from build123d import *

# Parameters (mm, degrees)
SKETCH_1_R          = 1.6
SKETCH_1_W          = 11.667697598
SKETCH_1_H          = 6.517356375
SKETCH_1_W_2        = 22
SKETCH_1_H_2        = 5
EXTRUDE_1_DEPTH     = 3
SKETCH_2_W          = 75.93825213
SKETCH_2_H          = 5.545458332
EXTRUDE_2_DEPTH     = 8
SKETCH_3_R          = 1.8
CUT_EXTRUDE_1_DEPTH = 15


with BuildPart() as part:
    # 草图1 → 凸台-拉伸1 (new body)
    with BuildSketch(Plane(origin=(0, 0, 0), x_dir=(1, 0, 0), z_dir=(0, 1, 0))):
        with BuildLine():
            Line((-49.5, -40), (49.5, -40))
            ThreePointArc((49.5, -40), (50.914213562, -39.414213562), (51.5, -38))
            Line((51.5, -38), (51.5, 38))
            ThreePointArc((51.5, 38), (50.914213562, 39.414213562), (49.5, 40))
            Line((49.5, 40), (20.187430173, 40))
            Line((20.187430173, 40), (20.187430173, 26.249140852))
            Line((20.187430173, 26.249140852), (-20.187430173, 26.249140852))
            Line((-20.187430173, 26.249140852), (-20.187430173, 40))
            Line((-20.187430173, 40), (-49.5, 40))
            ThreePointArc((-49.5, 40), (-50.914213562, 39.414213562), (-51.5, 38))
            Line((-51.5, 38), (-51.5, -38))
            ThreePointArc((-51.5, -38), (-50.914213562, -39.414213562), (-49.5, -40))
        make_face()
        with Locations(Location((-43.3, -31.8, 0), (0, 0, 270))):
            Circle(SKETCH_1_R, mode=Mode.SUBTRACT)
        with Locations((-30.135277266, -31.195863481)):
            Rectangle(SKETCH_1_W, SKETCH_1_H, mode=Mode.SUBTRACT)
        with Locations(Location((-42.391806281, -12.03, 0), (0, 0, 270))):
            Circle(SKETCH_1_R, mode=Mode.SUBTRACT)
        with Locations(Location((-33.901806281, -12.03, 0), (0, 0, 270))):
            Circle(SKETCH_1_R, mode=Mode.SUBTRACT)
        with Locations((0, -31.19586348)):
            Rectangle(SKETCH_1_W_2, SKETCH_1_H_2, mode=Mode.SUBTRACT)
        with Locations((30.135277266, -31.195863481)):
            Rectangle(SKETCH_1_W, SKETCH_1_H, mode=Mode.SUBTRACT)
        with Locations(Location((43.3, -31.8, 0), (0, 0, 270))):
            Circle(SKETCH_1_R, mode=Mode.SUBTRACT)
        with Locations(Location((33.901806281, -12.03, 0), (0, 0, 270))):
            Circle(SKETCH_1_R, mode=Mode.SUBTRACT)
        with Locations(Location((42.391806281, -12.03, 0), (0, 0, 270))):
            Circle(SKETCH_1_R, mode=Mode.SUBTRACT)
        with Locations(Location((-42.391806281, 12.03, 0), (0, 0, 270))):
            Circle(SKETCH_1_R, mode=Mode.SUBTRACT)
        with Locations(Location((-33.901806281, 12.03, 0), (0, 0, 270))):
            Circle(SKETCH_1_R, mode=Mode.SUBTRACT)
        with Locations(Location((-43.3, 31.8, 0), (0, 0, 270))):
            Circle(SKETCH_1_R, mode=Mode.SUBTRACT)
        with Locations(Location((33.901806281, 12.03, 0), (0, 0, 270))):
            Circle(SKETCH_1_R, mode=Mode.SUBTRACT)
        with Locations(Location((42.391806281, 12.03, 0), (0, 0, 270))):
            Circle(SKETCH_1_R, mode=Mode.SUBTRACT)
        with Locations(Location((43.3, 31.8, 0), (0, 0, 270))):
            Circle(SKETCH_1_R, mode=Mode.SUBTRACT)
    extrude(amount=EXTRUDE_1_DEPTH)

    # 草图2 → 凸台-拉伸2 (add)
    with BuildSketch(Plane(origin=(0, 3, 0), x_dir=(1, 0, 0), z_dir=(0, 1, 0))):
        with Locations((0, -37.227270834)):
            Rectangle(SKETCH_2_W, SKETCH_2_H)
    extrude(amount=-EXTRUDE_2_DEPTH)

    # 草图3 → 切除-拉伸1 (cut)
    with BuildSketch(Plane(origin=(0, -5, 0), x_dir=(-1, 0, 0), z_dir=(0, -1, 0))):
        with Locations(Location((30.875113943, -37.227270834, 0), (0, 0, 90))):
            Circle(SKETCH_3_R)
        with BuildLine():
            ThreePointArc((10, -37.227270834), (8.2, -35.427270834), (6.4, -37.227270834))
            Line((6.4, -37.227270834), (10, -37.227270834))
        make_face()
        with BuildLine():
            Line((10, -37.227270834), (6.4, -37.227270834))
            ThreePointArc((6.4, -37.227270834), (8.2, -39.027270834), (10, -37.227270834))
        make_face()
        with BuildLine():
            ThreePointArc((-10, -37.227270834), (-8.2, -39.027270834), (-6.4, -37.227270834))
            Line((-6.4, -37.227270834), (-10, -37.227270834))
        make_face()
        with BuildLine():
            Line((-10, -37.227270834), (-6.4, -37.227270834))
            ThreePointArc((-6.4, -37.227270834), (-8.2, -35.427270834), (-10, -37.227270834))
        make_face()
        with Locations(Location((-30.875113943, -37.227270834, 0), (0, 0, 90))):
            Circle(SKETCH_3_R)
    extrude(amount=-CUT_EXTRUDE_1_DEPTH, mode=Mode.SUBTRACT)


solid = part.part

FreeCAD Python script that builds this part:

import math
import FreeCAD as App
import Part
import Sketcher

doc = App.newDocument("Part")
params = doc.addObject("Spreadsheet::Sheet", "Params")
for row, (alias, value) in enumerate([
    ("sketch1_radius", "2 mm"),
    ("sketch1_diameter", "3.2 mm"),
    ("sketch1_width", "99 mm"),
    ("sketch1_width2", "22 mm"),
    ("sketch1_height", "76 mm"),
    ("pad1_length", "3 mm"),
    ("pad2_length", "8 mm"),
    ("sketch3_diameter", "3.6 mm"),
    ("pocket1_length", "15 mm"),
], start=1):
    params.set(f"A{row}", alias)
    params.set(f"B{row}", "=" + value)
    params.setAlias(f"B{row}", alias)

body = doc.addObject("PartDesign::Body", "Body")

# Sketch on XZ plane
sketch1 = body.newObject("Sketcher::SketchObject", "Sketch")
sketch1.AttachmentSupport = (doc.getObject("XZ_Plane"), [""])
sketch1.MapMode = "FlatFace"
sketch1.addGeometry(Part.LineSegment(App.Vector(-49.5, 40, 0), App.Vector(49.5, 40, 0)), False)
sketch1.addGeometry(Part.ArcOfCircle(Part.Circle(App.Vector(49.5, 38, 0), App.Vector(0, 0, 1), 2), math.radians(0), math.radians(90)), False)
sketch1.addGeometry(Part.LineSegment(App.Vector(51.5, 38, 0), App.Vector(51.5, -38, 0)), False)
sketch1.addGeometry(Part.ArcOfCircle(Part.Circle(App.Vector(49.5, -38, 0), App.Vector(0, 0, 1), 2), math.radians(-90), math.radians(0)), False)
sketch1.addGeometry(Part.LineSegment(App.Vector(49.5, -40, 0), App.Vector(20.2, -40, 0)), False)
sketch1.addGeometry(Part.LineSegment(App.Vector(20.2, -40, 0), App.Vector(20.2, -26.2, 0)), False)
sketch1.addGeometry(Part.LineSegment(App.Vector(20.2, -26.2, 0), App.Vector(-20.2, -26.2, 0)), False)
sketch1.addGeometry(Part.LineSegment(App.Vector(-20.2, -26.2, 0), App.Vector(-20.2, -40, 0)), False)
sketch1.addGeometry(Part.LineSegment(App.Vector(-20.2, -40, 0), App.Vector(-49.5, -40, 0)), False)
sketch1.addGeometry(Part.ArcOfCircle(Part.Circle(App.Vector(-49.5, -38, 0), App.Vector(0, 0, 1), 2), math.radians(-180), math.radians(-90)), False)
sketch1.addGeometry(Part.LineSegment(App.Vector(-51.5, -38, 0), App.Vector(-51.5, 38, 0)), False)
sketch1.addGeometry(Part.ArcOfCircle(Part.Circle(App.Vector(-49.5, 38, 0), App.Vector(0, 0, 1), 2), math.radians(90), math.radians(180)), False)
sketch1.addGeometry(Part.Circle(App.Vector(-43.3, 31.8, 0), App.Vector(0, 0, 1), 1.6), False)
sketch1.addGeometry(Part.LineSegment(App.Vector(-24.3, 34.5, 0), App.Vector(-36, 34.5, 0)), False)
sketch1.addGeometry(Part.LineSegment(App.Vector(-36, 34.5, 0), App.Vector(-36, 27.9, 0)), False)
sketch1.addGeometry(Part.LineSegment(App.Vector(-36, 27.9, 0), App.Vector(-24.3, 27.9, 0)), False)
sketch1.addGeometry(Part.LineSegment(App.Vector(-24.3, 27.9, 0), App.Vector(-24.3, 34.5, 0)), False)
sketch1.addGeometry(Part.Circle(App.Vector(-42.4, 12, 0), App.Vector(0, 0, 1), 1.6), False)
sketch1.addGeometry(Part.Circle(App.Vector(-33.9, 12, 0), App.Vector(0, 0, 1), 1.6), False)
sketch1.addGeometry(Part.LineSegment(App.Vector(11, 33.7, 0), App.Vector(-11, 33.7, 0)), False)
sketch1.addGeometry(Part.LineSegment(App.Vector(-11, 33.7, 0), App.Vector(-11, 28.7, 0)), False)
sketch1.addGeometry(Part.LineSegment(App.Vector(-11, 28.7, 0), App.Vector(11, 28.7, 0)), False)
sketch1.addGeometry(Part.LineSegment(App.Vector(11, 28.7, 0), App.Vector(11, 33.7, 0)), False)
sketch1.addGeometry(Part.LineSegment(App.Vector(36, 34.5, 0), App.Vector(24.3, 34.5, 0)), False)
sketch1.addGeometry(Part.LineSegment(App.Vector(24.3, 34.5, 0), App.Vector(24.3, 27.9, 0)), False)
sketch1.addGeometry(Part.LineSegment(App.Vector(24.3, 27.9, 0), App.Vector(36, 27.9, 0)), False)
sketch1.addGeometry(Part.LineSegment(App.Vector(36, 27.9, 0), App.Vector(36, 34.5, 0)), False)
sketch1.addGeometry(Part.Circle(App.Vector(43.3, 31.8, 0), App.Vector(0, 0, 1), 1.6), False)
sketch1.addGeometry(Part.Circle(App.Vector(33.9, 12, 0), App.Vector(0, 0, 1), 1.6), False)
sketch1.addGeometry(Part.Circle(App.Vector(42.4, 12, 0), App.Vector(0, 0, 1), 1.6), False)
sketch1.addGeometry(Part.Circle(App.Vector(-42.4, -12, 0), App.Vector(0, 0, 1), 1.6), False)
sketch1.addGeometry(Part.Circle(App.Vector(-33.9, -12, 0), App.Vector(0, 0, 1), 1.6), False)
sketch1.addGeometry(Part.Circle(App.Vector(-43.3, -31.8, 0), App.Vector(0, 0, 1), 1.6), False)
sketch1.addGeometry(Part.Circle(App.Vector(33.9, -12, 0), App.Vector(0, 0, 1), 1.6), False)
sketch1.addGeometry(Part.Circle(App.Vector(42.4, -12, 0), App.Vector(0, 0, 1), 1.6), False)
sketch1.addGeometry(Part.Circle(App.Vector(43.3, -31.8, 0), App.Vector(0, 0, 1), 1.6), False)
sketch1.addConstraint(Sketcher.Constraint("Tangent", 0, 2, 1, 2))
sketch1.addConstraint(Sketcher.Constraint("Tangent", 1, 1, 2, 1))
sketch1.addConstraint(Sketcher.Constraint("Tangent", 2, 2, 3, 2))
sketch1.addConstraint(Sketcher.Constraint("Tangent", 3, 1, 4, 1))
sketch1.addConstraint(Sketcher.Constraint("Coincident", 4, 2, 5, 1))
sketch1.addConstraint(Sketcher.Constraint("Coincident", 5, 2, 6, 1))
sketch1.addConstraint(Sketcher.Constraint("Coincident", 6, 2, 7, 1))
sketch1.addConstraint(Sketcher.Constraint("Coincident", 7, 2, 8, 1))
sketch1.addConstraint(Sketcher.Constraint("Tangent", 8, 2, 9, 2))
sketch1.addConstraint(Sketcher.Constraint("Tangent", 9, 1, 10, 1))
sketch1.addConstraint(Sketcher.Constraint("Tangent", 10, 2, 11, 2))
sketch1.addConstraint(Sketcher.Constraint("Tangent", 11, 1, 0, 1))
sketch1.addConstraint(Sketcher.Constraint("Coincident", 13, 2, 14, 1))
sketch1.addConstraint(Sketcher.Constraint("Coincident", 14, 2, 15, 1))
sketch1.addConstraint(Sketcher.Constraint("Coincident", 15, 2, 16, 1))
sketch1.addConstraint(Sketcher.Constraint("Coincident", 16, 2, 13, 1))
sketch1.addConstraint(Sketcher.Constraint("Coincident", 19, 2, 20, 1))
sketch1.addConstraint(Sketcher.Constraint("Coincident", 20, 2, 21, 1))
sketch1.addConstraint(Sketcher.Constraint("Coincident", 21, 2, 22, 1))
sketch1.addConstraint(Sketcher.Constraint("Coincident", 22, 2, 19, 1))
sketch1.addConstraint(Sketcher.Constraint("Coincident", 23, 2, 24, 1))
sketch1.addConstraint(Sketcher.Constraint("Coincident", 24, 2, 25, 1))
sketch1.addConstraint(Sketcher.Constraint("Coincident", 25, 2, 26, 1))
sketch1.addConstraint(Sketcher.Constraint("Coincident", 26, 2, 23, 1))
sketch1.addConstraint(Sketcher.Constraint("Horizontal", 0))
sketch1.addConstraint(Sketcher.Constraint("Vertical", 2))
sketch1.addConstraint(Sketcher.Constraint("Horizontal", 4))
sketch1.addConstraint(Sketcher.Constraint("Vertical", 5))
sketch1.addConstraint(Sketcher.Constraint("Horizontal", 6))
sketch1.addConstraint(Sketcher.Constraint("Vertical", 7))
sketch1.addConstraint(Sketcher.Constraint("Horizontal", 8))
sketch1.addConstraint(Sketcher.Constraint("Vertical", 10))
sketch1.addConstraint(Sketcher.Constraint("Horizontal", 13))
sketch1.addConstraint(Sketcher.Constraint("Vertical", 14))
sketch1.addConstraint(Sketcher.Constraint("Horizontal", 15))
sketch1.addConstraint(Sketcher.Constraint("Vertical", 16))
sketch1.addConstraint(Sketcher.Constraint("Horizontal", 19))
sketch1.addConstraint(Sketcher.Constraint("Vertical", 20))
sketch1.addConstraint(Sketcher.Constraint("Horizontal", 21))
sketch1.addConstraint(Sketcher.Constraint("Vertical", 22))
sketch1.addConstraint(Sketcher.Constraint("Horizontal", 23))
sketch1.addConstraint(Sketcher.Constraint("Vertical", 24))
sketch1.addConstraint(Sketcher.Constraint("Horizontal", 25))
sketch1.addConstraint(Sketcher.Constraint("Vertical", 26))
sketch1.addConstraint(Sketcher.Constraint("Equal", 1, 3))
sketch1.addConstraint(Sketcher.Constraint("Equal", 3, 9))
sketch1.addConstraint(Sketcher.Constraint("Equal", 9, 11))
sketch1.addConstraint(Sketcher.Constraint("Equal", 12, 17))
sketch1.addConstraint(Sketcher.Constraint("Equal", 17, 18))
sketch1.addConstraint(Sketcher.Constraint("Equal", 18, 27))
sketch1.addConstraint(Sketcher.Constraint("Equal", 27, 28))
sketch1.addConstraint(Sketcher.Constraint("Equal", 28, 29))
sketch1.addConstraint(Sketcher.Constraint("Equal", 29, 30))
sketch1.addConstraint(Sketcher.Constraint("Equal", 30, 31))
sketch1.addConstraint(Sketcher.Constraint("Equal", 31, 32))
sketch1.addConstraint(Sketcher.Constraint("Equal", 32, 33))
sketch1.addConstraint(Sketcher.Constraint("Equal", 33, 34))
sketch1.addConstraint(Sketcher.Constraint("Equal", 34, 35))
sketch1.addConstraint(Sketcher.Constraint("Symmetric", 1, 3, 9, 3, -1, 1))
sketch1.addConstraint(Sketcher.Constraint("Symmetric", 29, 3, 30, 3, -1, 1))
sketch1.addConstraint(Sketcher.Constraint("Symmetric", 28, 3, 31, 3, -1, 1))
sketch1.addConstraint(Sketcher.Constraint("Symmetric", 27, 3, 32, 3, -1, 1))
sketch1.addConstraint(Sketcher.Constraint("Symmetric", 18, 3, 33, 3, -1, 1))
sketch1.addConstraint(Sketcher.Constraint("Symmetric", 17, 3, 34, 3, -1, 1))
sketch1.addConstraint(Sketcher.Constraint("Symmetric", 12, 3, 35, 3, -1, 1))
sketch1.addConstraint(Sketcher.Constraint("Symmetric", 12, 3, 27, 3, -2))
sketch1.addConstraint(Sketcher.Constraint("Symmetric", 18, 3, 28, 3, -2))
sketch1.addConstraint(Sketcher.Constraint("Symmetric", 17, 3, 29, 3, -2))
sketch1.addConstraint(Sketcher.Constraint("Symmetric", 4, 2, 7, 2, -2))
sketch1.addConstraint(Sketcher.Constraint("Symmetric", 16, 2, 23, 2, -2))
sketch1.addConstraint(Sketcher.Constraint("Symmetric", 14, 2, 25, 2, -2))
sketch1.addConstraint(Sketcher.Constraint("Horizontal", 17, 3, 18, 3))
sketch1.addConstraint(Sketcher.Constraint("Radius", 1, 2.0))
sketch1.addConstraint(Sketcher.Constraint("Diameter", 12, 3.2))
sketch1.addConstraint(Sketcher.Constraint("DistanceX", 0, 1, 0, 2, 99.0))
sketch1.addConstraint(Sketcher.Constraint("DistanceX", 19, 2, 19, 1, 22.0))
sketch1.addConstraint(Sketcher.Constraint("DistanceY", 2, 2, 2, 1, 76.0))
sketch1.addConstraint(Sketcher.Constraint("DistanceY", 20, 2, 20, 1, 5.0))
sketch1.addConstraint(Sketcher.Constraint("DistanceX", 19, 2, -1, 1, 11.0))
sketch1.addConstraint(Sketcher.Constraint("DistanceX", 12, 3, -1, 1, 43.3))
sketch1.addConstraint(Sketcher.Constraint("DistanceY", -1, 1, 12, 3, 31.8))
sketch1.addConstraint(Sketcher.Constraint("DistanceY", -1, 1, 17, 3, 12.03))
sketch1.addConstraint(Sketcher.Constraint("DistanceX", 17, 3, 18, 3, 8.49))
sketch1.addConstraint(Sketcher.Constraint("DistanceX", 4, 2, 4, 1, 29.31257))
sketch1.addConstraint(Sketcher.Constraint("DistanceY", 5, 1, 5, 2, 13.750859))
sketch1.addConstraint(Sketcher.Constraint("DistanceX", 13, 2, 13, 1, 11.667698))
sketch1.addConstraint(Sketcher.Constraint("DistanceY", 14, 2, 14, 1, 6.517356))
sketch1.addConstraint(Sketcher.Constraint("DistanceY", -1, 1, 13, 2, 34.454542))
sketch1.addConstraint(Sketcher.Constraint("DistanceX", 15, 2, -1, 1, 24.301428))
sketch1.addConstraint(Sketcher.Constraint("DistanceX", 13, 2, 18, 3, 2.06732))
sketch1.addConstraint(Sketcher.Constraint("DistanceY", 19, 2, 16, 2, 0.758678))
sketch1.setExpression("Constraints[72]", "Params.sketch1_radius")
sketch1.setExpression("Constraints[73]", "Params.sketch1_diameter")
sketch1.setExpression("Constraints[74]", "Params.sketch1_width")
sketch1.setExpression("Constraints[75]", "Params.sketch1_width2")
sketch1.setExpression("Constraints[76]", "Params.sketch1_height")
pad1 = body.newObject("PartDesign::Pad", "Pad")
pad1.Profile = sketch1
pad1.setExpression("Length", "Params.pad1_length")
pad1.Reversed = True

# Sketch on XZ plane
sketch2 = body.newObject("Sketcher::SketchObject", "Sketch001")
sketch2.AttachmentSupport = (doc.getObject("XZ_Plane"), [""])
sketch2.MapMode = "FlatFace"
sketch2.AttachmentOffset = App.Placement(App.Vector(0, 0, -3), App.Rotation())
sketch2.addGeometry(Part.LineSegment(App.Vector(-38, 34, 0), App.Vector(-38, 40, 0)), False)
sketch2.addGeometry(Part.LineSegment(App.Vector(-38, 40, 0), App.Vector(38, 40, 0)), False)
sketch2.addGeometry(Part.LineSegment(App.Vector(38, 40, 0), App.Vector(38, 34, 0)), False)
sketch2.addGeometry(Part.LineSegment(App.Vector(38, 34, 0), App.Vector(-38, 34, 0)), False)
sketch2.addConstraint(Sketcher.Constraint("Coincident", 0, 2, 1, 1))
sketch2.addConstraint(Sketcher.Constraint("Coincident", 1, 2, 2, 1))
sketch2.addConstraint(Sketcher.Constraint("Coincident", 2, 2, 3, 1))
sketch2.addConstraint(Sketcher.Constraint("Coincident", 3, 2, 0, 1))
sketch2.addConstraint(Sketcher.Constraint("Vertical", 0))
sketch2.addConstraint(Sketcher.Constraint("Horizontal", 1))
sketch2.addConstraint(Sketcher.Constraint("Vertical", 2))
sketch2.addConstraint(Sketcher.Constraint("Horizontal", 3))
sketch2.addConstraint(Sketcher.Constraint("DistanceY", -1, 1, 0, 2, 40.0))
sketch2.addConstraint(Sketcher.Constraint("DistanceY", 0, 1, 0, 2, 5.545458))
sketch2.addConstraint(Sketcher.Constraint("DistanceX", 1, 1, 1, 2, 75.938252))
sketch2.addConstraint(Sketcher.Constraint("DistanceX", 0, 2, -1, 1, 37.969126))
pad2 = body.newObject("PartDesign::Pad", "Pad001")
pad2.Profile = sketch2
pad2.setExpression("Length", "Params.pad2_length")

# Sketch on XZ plane
sketch3 = body.newObject("Sketcher::SketchObject", "Sketch002")
sketch3.AttachmentSupport = (doc.getObject("XZ_Plane"), [""])
sketch3.MapMode = "FlatFace"
sketch3.AttachmentOffset = App.Placement(App.Vector(0, 0, 5), App.Rotation())
sketch3.addGeometry(Part.Circle(App.Vector(-30.9, 37.2, 0), App.Vector(0, 0, 1), 1.8), False)
sketch3.addGeometry(Part.Circle(App.Vector(-8.2, 37.2, 0), App.Vector(0, 0, 1), 1.8), False)
sketch3.addGeometry(Part.Circle(App.Vector(8.2, 37.2, 0), App.Vector(0, 0, 1), 1.8), False)
sketch3.addGeometry(Part.Circle(App.Vector(30.9, 37.2, 0), App.Vector(0, 0, 1), 1.8), False)
sketch3.addConstraint(Sketcher.Constraint("Equal", 0, 1))
sketch3.addConstraint(Sketcher.Constraint("Equal", 1, 2))
sketch3.addConstraint(Sketcher.Constraint("Equal", 2, 3))
sketch3.addConstraint(Sketcher.Constraint("Symmetric", 1, 3, 2, 3, -2))
sketch3.addConstraint(Sketcher.Constraint("Symmetric", 0, 3, 3, 3, -2))
sketch3.addConstraint(Sketcher.Constraint("Horizontal", 0, 3, 1, 3))
sketch3.addConstraint(Sketcher.Constraint("Diameter", 0, 3.6))
sketch3.addConstraint(Sketcher.Constraint("DistanceX", 1, 3, -1, 1, 8.2))
sketch3.addConstraint(Sketcher.Constraint("DistanceY", -1, 1, 0, 3, 37.227271))
sketch3.addConstraint(Sketcher.Constraint("DistanceX", 0, 3, -1, 1, 30.875114))
sketch3.setExpression("Constraints[6]", "Params.sketch3_diameter")
pocket1 = body.newObject("PartDesign::Pocket", "Pocket")
pocket1.Profile = sketch3
pocket1.setExpression("Length", "Params.pocket1_length")

doc.recompute()
